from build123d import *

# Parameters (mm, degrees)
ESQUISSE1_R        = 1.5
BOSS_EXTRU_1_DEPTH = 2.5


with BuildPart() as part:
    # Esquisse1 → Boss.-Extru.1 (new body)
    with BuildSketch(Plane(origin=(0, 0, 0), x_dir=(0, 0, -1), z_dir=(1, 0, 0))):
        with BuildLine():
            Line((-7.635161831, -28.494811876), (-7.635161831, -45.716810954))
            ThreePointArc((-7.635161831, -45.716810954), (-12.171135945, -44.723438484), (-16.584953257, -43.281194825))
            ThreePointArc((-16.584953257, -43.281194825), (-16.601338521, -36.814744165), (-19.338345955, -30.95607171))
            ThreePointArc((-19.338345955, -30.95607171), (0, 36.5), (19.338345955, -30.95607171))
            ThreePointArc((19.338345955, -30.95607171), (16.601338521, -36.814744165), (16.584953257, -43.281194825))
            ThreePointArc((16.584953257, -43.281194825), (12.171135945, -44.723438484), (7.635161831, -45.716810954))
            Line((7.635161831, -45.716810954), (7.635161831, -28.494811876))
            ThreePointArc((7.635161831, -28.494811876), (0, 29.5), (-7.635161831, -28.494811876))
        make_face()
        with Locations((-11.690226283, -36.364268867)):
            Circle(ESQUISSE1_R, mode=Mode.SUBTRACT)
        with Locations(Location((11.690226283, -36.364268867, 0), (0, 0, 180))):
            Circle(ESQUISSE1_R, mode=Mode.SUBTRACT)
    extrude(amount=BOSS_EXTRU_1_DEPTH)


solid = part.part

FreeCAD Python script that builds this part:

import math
import FreeCAD as App
import Part
import Sketcher

doc = App.newDocument("Part")
params = doc.addObject("Spreadsheet::Sheet", "Params")
for row, (alias, value) in enumerate([
    ("sketch1_diameter", "3 mm"),
    ("sketch1_radius", "15 mm"),
    ("sketch1_radius2", "29.5 mm"),
    ("sketch1_radius3", "36.5 mm"),
    ("sketch1_radius4", "46.35 mm"),
    ("pad1_length", "2.5 mm"),
], start=1):
    params.set(f"A{row}", alias)
    params.set(f"B{row}", "=" + value)
    params.setAlias(f"B{row}", alias)

body = doc.addObject("PartDesign::Body", "Body")

# Sketch on YZ plane
sketch1 = body.newObject("Sketcher::SketchObject", "Sketch")
sketch1.AttachmentSupport = (doc.getObject("YZ_Plane"), [""])
sketch1.MapMode = "FlatFace"
sketch1.addGeometry([
    Part.LineSegment(App.Vector(-45.716811, 7.635162, 0), App.Vector(-28.494812, 7.635162, 0)),  # 0
    Part.ArcOfCircle(Part.Circle(App.Vector(0, 0, 0), App.Vector(0, 0, 1), 29.5), math.radians(-165), math.radians(165)),  # 1
    Part.LineSegment(App.Vector(-28.494812, -7.635162, 0), App.Vector(-45.716811, -7.635162, 0)),  # 2
    Part.ArcOfCircle(Part.Circle(App.Vector(0, 0, 0), App.Vector(0, 0, 1), 46.35), math.radians(-170.518542), math.radians(-159.03363)),  # 3
    Part.ArcOfCircle(Part.Circle(App.Vector(-40.085084, -31.240494, 0), App.Vector(0, 0, 1), 15), math.radians(52.511597), math.radians(102.30256)),  # 4
    Part.ArcOfCircle(Part.Circle(App.Vector(0, 0, 0), App.Vector(0, 0, 1), 36.5), math.radians(-148.006862), math.radians(148.006862)),  # 5
    Part.ArcOfCircle(Part.Circle(App.Vector(-40.085084, 31.240494, 0), App.Vector(0, 0, 1), 15), math.radians(-102.30256), math.radians(-52.511597)),  # 6
    Part.ArcOfCircle(Part.Circle(App.Vector(0, 0, 0), App.Vector(0, 0, 1), 46.35), math.radians(159.03363), math.radians(170.518542)),  # 7
    Part.Circle(App.Vector(-36.364269, -11.690226, 0), App.Vector(0, 0, 1), 1.5),  # 8
    Part.Circle(App.Vector(-36.364269, 11.690226, 0), App.Vector(0, 0, 1), 1.5),  # 9
], False)
sketch1.addConstraint([
    Sketcher.Constraint("Coincident", 0, 2, 1, 2),
    Sketcher.Constraint("Coincident", 1, 1, 2, 1),
    Sketcher.Constraint("Coincident", 2, 2, 3, 1),
    Sketcher.Constraint("Coincident", 3, 2, 4, 2),
    Sketcher.Constraint("Coincident", 4, 1, 5, 1),
    Sketcher.Constraint("Coincident", 5, 2, 6, 2),
    Sketcher.Constraint("Coincident", 6, 1, 7, 1),
    Sketcher.Constraint("Coincident", 7, 2, 0, 1),
    Sketcher.Constraint("Horizontal", 0),
    Sketcher.Constraint("Horizontal", 2),
    Sketcher.Constraint("Coincident", 1, 3, -1, 1),
    Sketcher.Constraint("Coincident", 3, 3, -1, 1),
    Sketcher.Constraint("Coincident", 5, 3, -1, 1),
    Sketcher.Constraint("Coincident", 7, 3, -1, 1),
    Sketcher.Constraint("Equal", 4, 6),
    Sketcher.Constraint("Equal", 3, 7),
    Sketcher.Constraint("Equal", 8, 9),
    Sketcher.Constraint("Symmetric", 4, 3, 6, 3, -1),
    Sketcher.Constraint("Symmetric", 8, 3, 9, 3, -1),
    Sketcher.Constraint("Vertical", 0, 2, 1, 1),
    Sketcher.Constraint("Diameter", 8, 3.0),
    Sketcher.Constraint("Radius", 4, 15.0),
    Sketcher.Constraint("Radius", 1, 29.5),
    Sketcher.Constraint("Radius", 5, 36.5),
    Sketcher.Constraint("Radius", 3, 46.35),
    Sketcher.Constraint("DistanceX", 0, 1, 0, 2, 17.221999),
    Sketcher.Constraint("DistanceX", 8, 3, -1, 1, 36.364269),
    Sketcher.Constraint("DistanceX", 4, 1, -1, 1, 30.956072),
    Sketcher.Constraint("DistanceY", 4, 3, 6, 3, 62.480988),
    Sketcher.Constraint("DistanceY", 8, 3, 0, 2, 19.325388),
])
sketch1.setExpression("Constraints[20]", "Params.sketch1_diameter")
sketch1.setExpression("Constraints[21]", "Params.sketch1_radius")
sketch1.setExpression("Constraints[22]", "Params.sketch1_radius2")
sketch1.setExpression("Constraints[23]", "Params.sketch1_radius3")
sketch1.setExpression("Constraints[24]", "Params.sketch1_radius4")
pad1 = body.newObject("PartDesign::Pad", "Pad")
pad1.Profile = sketch1
pad1.setExpression("Length", "Params.pad1_length")

doc.recompute()
